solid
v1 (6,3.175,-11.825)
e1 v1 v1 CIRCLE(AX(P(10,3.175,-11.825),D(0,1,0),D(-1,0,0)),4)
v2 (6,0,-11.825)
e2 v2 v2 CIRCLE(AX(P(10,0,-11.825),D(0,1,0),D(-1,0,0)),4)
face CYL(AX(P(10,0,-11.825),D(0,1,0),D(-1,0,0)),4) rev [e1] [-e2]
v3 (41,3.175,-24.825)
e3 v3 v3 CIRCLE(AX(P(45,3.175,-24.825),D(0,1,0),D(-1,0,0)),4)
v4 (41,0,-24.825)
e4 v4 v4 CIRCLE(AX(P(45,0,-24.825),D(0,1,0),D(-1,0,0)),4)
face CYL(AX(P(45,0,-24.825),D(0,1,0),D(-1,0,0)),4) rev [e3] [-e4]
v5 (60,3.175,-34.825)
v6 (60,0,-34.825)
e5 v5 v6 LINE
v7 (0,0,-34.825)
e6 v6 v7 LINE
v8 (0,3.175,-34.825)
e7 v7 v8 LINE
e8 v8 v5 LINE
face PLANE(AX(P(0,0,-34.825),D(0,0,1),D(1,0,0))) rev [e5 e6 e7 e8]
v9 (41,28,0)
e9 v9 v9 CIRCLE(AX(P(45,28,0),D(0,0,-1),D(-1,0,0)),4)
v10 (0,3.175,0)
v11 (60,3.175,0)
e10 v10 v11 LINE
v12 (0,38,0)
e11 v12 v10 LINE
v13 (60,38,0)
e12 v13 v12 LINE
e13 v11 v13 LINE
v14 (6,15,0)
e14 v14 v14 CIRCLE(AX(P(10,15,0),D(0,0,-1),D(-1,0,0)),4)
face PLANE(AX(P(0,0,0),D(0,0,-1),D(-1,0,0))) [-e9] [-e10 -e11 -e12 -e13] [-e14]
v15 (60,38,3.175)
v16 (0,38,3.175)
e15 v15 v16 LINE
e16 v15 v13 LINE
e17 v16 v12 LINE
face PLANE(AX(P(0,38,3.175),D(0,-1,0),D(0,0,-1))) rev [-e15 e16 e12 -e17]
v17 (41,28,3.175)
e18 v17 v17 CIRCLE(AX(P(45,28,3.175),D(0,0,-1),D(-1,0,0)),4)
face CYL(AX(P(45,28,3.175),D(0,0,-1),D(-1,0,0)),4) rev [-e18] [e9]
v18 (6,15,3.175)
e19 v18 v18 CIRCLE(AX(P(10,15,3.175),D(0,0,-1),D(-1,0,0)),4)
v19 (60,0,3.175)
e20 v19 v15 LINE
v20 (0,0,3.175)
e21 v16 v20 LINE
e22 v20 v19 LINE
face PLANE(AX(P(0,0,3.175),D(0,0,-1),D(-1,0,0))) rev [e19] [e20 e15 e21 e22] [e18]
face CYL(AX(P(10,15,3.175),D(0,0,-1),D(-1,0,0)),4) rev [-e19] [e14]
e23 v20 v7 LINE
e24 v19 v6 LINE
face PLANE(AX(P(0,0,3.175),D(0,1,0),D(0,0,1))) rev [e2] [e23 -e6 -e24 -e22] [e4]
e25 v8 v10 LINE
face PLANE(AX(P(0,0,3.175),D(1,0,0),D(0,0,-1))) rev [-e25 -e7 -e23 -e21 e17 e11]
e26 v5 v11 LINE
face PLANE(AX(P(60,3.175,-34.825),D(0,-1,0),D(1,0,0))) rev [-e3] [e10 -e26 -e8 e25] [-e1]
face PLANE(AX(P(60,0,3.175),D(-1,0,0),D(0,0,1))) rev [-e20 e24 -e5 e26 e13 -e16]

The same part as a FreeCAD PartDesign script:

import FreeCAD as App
import Part
import Sketcher

V = App.Vector
Q = App.Units.Quantity


def add_polygon(sketch, points):
    """Adds a closed chain of lines whose ends are joined by coincident constraints."""
    first, n = sketch.GeometryCount, len(points)
    for a, b in zip(points, points[1:] + points[:1]):
        sketch.addGeometry(Part.LineSegment(App.Vector(*a, 0), App.Vector(*b, 0)), False)
    for i in range(n):
        sketch.addConstraint(Sketcher.Constraint("Coincident", first + i, 2, first + (i + 1) % n, 1))

doc = App.newDocument("Part")
body = doc.addObject("PartDesign::Body", "Body")

# Sketch on XY plane
sketch1 = doc.addObject("Sketcher::SketchObject", "Sketch")
body.addObject(sketch1)
sketch1.AttachmentSupport = (doc.XY_Plane, [""])
sketch1.MapMode = "FlatFace"
add_polygon(sketch1, [(0, 38), (0, 0), (60, 0), (60, 38)])  # lines 0-3
sketch1.addConstraint([
    Sketcher.Constraint("Vertical", 0),
    Sketcher.Constraint("Horizontal", 1),
    Sketcher.Constraint("Vertical", 2),
    Sketcher.Constraint("Horizontal", 3),
    Sketcher.Constraint("Coincident", 0, 2, -1, 1),
    Sketcher.Constraint("DistanceX", 1, 1, 1, 2, Q("60 mm")),
    Sketcher.Constraint("DistanceY", 0, 2, 0, 1, Q("38 mm")),
])
pad1 = doc.addObject("PartDesign::Pad", "Pad")
body.addObject(pad1)
pad1.Profile = sketch1
pad1.Length = 3.175

# Sketch on XY plane
sketch2 = doc.addObject("Sketcher::SketchObject", "Sketch001")
body.addObject(sketch2)
sketch2.AttachmentSupport = (doc.XY_Plane, [""])
sketch2.MapMode = "FlatFace"
add_polygon(sketch2, [(60, 3.2), (60, 0), (0, 0), (0, 3.2)])  # lines 0-3
sketch2.addConstraint([
    Sketcher.Constraint("Vertical", 0),
    Sketcher.Constraint("Horizontal", 1),
    Sketcher.Constraint("Vertical", 2),
    Sketcher.Constraint("Horizontal", 3),
    Sketcher.Constraint("Coincident", 1, 2, -1, 1),
    Sketcher.Constraint("DistanceX", 1, 2, 1, 1, Q("60 mm")),
    Sketcher.Constraint("DistanceY", 0, 2, 0, 1, Q("3.175 mm")),
])
pad2 = doc.addObject("PartDesign::Pad", "Pad001")
body.addObject(pad2)
pad2.Profile = sketch2
pad2.Length = 34.825
pad2.Reversed = True

# Sketch on XY plane
sketch3 = doc.addObject("Sketcher::SketchObject", "Sketch002")
body.addObject(sketch3)
sketch3.AttachmentSupport = (doc.XY_Plane, [""])
sketch3.MapMode = "FlatFace"
sketch3.addGeometry([
    Part.Circle(V(45, 28, 0), V(0, 0, 1), 4),
    Part.Circle(V(10, 15, 0), V(0, 0, 1), 4),
], False)
sketch3.addConstraint([
    Sketcher.Constraint("Equal", 0, 1),
    Sketcher.Constraint("Diameter", 0, Q("8 mm")),
    Sketcher.Constraint("DistanceX", -1, 1, 0, 3, Q("45 mm")),
    Sketcher.Constraint("DistanceY", -1, 1, 0, 3, Q("28 mm")),
    Sketcher.Constraint("DistanceX", -1, 1, 1, 3, Q("10 mm")),
    Sketcher.Constraint("DistanceY", -1, 1, 1, 3, Q("15 mm")),
])
pocket1 = doc.addObject("PartDesign::Pocket", "Pocket")
body.addObject(pocket1)
pocket1.Profile = sketch3
pocket1.Type = "ThroughAll"
pocket1.Reversed = True

# Sketch on XZ plane
sketch4 = doc.addObject("Sketcher::SketchObject", "Sketch003")
body.addObject(sketch4)
sketch4.AttachmentSupport = (doc.XZ_Plane, [""])
sketch4.MapMode = "FlatFace"
sketch4.AttachmentOffset = App.Placement(V(0, 0, -3.175), App.Rotation())
sketch4.addGeometry([
    Part.Circle(V(45, -24.8, 0), V(0, 0, 1), 4),
    Part.Circle(V(10, -11.8, 0), V(0, 0, 1), 4),
], False)
sketch4.addConstraint([
    Sketcher.Constraint("Equal", 0, 1),
    Sketcher.Constraint("Diameter", 0, Q("8 mm")),
    Sketcher.Constraint("DistanceX", -1, 1, 0, 3, Q("45 mm")),
    Sketcher.Constraint("DistanceX", -1, 1, 1, 3, Q("10 mm")),
    Sketcher.Constraint("DistanceY", 0, 3, 1, 3, Q("13 mm")),
    Sketcher.Constraint("DistanceY", 0, 3, -1, 1, Q("24.825 mm")),
])
pocket2 = doc.addObject("PartDesign::Pocket", "Pocket001")
body.addObject(pocket2)
pocket2.Profile = sketch4
pocket2.Type = "ThroughAll"
pocket2.Reversed = True

doc.recompute()
